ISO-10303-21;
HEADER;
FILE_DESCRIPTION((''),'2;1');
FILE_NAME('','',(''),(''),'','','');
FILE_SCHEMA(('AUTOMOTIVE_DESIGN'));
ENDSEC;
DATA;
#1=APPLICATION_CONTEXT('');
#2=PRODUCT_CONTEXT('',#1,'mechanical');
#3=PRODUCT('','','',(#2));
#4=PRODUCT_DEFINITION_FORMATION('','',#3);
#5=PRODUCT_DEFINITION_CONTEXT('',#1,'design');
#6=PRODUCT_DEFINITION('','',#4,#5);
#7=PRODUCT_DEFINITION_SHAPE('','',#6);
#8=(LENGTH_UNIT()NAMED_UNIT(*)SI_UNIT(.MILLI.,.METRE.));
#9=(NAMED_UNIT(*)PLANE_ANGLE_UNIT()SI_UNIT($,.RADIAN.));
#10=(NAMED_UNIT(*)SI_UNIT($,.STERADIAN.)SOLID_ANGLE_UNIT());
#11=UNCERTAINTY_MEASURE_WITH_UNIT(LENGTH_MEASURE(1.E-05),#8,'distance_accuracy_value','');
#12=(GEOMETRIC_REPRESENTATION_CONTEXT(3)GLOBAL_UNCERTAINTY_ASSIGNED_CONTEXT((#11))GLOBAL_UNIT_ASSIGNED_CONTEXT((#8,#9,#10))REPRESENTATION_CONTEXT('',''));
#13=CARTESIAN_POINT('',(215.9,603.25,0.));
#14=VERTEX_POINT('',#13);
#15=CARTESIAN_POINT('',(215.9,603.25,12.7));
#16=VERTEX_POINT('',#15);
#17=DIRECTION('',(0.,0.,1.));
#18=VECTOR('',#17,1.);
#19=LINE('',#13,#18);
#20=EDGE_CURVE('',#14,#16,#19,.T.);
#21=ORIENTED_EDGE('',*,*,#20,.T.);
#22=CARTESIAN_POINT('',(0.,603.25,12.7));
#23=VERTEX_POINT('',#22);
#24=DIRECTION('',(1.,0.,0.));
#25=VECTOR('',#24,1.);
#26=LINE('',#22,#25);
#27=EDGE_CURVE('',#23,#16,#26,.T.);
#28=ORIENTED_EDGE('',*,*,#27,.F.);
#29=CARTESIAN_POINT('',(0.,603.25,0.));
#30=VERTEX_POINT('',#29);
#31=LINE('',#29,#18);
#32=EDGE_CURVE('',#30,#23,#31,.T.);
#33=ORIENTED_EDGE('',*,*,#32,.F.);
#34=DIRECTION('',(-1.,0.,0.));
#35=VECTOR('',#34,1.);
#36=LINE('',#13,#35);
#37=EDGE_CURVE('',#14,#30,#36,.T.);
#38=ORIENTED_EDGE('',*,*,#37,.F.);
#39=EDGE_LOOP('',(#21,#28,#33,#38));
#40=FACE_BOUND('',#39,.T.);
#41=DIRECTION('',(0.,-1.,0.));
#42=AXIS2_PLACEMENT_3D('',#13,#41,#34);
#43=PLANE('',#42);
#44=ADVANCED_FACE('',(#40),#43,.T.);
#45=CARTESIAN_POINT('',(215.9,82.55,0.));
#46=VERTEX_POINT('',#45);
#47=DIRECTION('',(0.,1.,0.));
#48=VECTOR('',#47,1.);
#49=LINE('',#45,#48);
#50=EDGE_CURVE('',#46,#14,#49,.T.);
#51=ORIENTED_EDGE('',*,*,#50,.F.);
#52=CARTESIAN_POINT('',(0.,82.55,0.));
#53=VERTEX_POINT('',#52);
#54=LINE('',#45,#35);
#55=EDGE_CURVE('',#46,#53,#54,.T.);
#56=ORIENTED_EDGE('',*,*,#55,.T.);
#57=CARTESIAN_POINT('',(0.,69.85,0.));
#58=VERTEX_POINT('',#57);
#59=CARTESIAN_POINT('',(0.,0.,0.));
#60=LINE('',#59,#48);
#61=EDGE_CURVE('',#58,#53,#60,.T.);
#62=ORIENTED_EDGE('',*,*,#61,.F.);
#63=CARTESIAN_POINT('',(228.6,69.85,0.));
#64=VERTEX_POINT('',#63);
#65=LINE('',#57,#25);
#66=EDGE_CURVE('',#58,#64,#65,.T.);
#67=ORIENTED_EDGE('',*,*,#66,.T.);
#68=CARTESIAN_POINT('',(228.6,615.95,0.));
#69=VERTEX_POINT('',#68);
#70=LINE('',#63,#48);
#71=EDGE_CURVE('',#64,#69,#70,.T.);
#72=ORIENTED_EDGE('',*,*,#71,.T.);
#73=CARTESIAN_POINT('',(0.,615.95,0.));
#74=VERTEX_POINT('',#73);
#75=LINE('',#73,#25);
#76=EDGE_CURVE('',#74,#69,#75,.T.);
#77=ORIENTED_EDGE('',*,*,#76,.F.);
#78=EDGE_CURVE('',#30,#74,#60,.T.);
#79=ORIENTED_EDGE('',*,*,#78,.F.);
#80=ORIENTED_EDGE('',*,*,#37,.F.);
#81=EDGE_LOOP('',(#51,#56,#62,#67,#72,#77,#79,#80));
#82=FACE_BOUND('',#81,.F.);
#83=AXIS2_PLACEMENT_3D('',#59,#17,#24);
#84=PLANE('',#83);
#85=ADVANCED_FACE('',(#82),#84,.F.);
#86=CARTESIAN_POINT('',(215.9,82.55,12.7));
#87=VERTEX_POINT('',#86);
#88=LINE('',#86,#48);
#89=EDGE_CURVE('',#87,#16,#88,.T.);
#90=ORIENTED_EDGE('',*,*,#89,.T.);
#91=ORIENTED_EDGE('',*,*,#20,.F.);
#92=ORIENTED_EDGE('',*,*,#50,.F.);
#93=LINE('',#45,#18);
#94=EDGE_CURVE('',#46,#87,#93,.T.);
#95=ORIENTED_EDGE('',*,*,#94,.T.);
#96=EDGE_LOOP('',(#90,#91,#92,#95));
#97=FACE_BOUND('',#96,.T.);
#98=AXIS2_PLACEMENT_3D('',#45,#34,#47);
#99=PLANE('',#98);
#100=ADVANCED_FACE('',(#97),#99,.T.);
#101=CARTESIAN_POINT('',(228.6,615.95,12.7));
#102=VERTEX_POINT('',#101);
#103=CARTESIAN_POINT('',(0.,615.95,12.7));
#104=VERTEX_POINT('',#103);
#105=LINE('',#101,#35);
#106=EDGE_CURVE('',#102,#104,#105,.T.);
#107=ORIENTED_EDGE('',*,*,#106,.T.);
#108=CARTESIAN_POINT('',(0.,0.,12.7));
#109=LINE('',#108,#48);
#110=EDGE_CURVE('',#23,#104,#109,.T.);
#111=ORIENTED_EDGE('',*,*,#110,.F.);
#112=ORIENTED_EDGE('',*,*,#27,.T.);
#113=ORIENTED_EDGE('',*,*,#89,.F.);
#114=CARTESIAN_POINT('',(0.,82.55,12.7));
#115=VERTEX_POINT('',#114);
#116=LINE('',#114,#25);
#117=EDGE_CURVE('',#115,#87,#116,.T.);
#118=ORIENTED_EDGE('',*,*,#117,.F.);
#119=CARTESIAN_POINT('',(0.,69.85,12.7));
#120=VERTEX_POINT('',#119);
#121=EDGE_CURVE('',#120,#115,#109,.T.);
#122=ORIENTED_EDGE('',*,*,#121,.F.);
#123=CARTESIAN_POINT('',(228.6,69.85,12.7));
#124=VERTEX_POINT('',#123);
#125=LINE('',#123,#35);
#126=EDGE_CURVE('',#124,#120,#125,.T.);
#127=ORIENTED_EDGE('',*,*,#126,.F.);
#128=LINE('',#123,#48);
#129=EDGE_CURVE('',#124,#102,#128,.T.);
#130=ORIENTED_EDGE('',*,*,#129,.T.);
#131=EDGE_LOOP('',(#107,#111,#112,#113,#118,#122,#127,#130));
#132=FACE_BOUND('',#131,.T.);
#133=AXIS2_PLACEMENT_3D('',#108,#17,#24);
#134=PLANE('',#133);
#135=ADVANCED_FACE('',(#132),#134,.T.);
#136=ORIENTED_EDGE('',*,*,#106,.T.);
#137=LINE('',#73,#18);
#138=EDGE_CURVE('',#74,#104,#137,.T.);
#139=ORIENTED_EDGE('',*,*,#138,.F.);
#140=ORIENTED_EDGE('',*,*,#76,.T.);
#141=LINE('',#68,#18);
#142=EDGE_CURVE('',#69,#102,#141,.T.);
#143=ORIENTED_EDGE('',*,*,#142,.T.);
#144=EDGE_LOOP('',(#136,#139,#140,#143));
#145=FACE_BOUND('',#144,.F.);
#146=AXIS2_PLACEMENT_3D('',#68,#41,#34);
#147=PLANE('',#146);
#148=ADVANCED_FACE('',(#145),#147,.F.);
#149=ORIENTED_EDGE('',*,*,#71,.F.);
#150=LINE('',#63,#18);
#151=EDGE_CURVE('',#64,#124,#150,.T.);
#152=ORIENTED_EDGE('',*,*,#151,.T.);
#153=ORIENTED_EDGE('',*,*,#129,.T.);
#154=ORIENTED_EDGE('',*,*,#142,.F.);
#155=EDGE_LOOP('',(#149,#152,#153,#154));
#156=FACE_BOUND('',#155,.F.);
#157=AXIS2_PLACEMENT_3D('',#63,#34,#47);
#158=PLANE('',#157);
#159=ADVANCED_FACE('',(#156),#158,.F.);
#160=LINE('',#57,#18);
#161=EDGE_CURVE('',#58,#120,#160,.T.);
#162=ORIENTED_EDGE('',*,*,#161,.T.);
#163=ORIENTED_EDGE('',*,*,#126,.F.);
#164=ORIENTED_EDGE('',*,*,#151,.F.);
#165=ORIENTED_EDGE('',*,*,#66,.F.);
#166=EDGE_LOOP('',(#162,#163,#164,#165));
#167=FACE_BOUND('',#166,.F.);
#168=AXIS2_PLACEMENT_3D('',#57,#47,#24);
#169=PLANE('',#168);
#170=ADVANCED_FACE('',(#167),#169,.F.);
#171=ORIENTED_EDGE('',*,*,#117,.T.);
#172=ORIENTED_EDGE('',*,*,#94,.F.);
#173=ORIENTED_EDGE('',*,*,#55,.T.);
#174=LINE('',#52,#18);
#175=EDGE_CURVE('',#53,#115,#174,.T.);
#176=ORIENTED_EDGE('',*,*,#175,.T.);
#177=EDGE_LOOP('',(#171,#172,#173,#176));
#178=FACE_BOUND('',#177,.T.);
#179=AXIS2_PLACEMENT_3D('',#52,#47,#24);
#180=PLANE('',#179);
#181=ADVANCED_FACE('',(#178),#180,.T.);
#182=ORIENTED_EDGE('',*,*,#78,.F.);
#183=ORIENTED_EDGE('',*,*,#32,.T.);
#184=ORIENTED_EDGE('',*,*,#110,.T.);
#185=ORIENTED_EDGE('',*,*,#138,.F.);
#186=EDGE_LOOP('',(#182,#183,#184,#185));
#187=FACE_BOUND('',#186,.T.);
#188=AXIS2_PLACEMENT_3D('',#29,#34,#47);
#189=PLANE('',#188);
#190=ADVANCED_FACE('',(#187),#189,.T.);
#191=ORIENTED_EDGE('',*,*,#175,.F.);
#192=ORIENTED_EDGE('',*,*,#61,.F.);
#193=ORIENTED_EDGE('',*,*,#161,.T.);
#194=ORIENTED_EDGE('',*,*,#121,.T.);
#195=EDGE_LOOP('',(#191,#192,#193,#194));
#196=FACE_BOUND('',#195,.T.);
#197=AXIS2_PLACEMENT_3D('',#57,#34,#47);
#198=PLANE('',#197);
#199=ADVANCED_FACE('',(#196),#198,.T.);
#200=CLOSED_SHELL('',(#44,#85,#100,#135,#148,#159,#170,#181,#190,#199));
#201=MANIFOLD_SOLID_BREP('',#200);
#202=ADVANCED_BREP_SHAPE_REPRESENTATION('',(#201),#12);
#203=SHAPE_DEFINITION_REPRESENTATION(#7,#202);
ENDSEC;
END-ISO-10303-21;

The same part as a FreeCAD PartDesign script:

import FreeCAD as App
import Part
import Sketcher

V = App.Vector
Q = App.Units.Quantity

doc = App.newDocument("Part")
body = doc.addObject("PartDesign::Body", "Body")

# Sketch on XY plane
sketch1 = body.newObject("Sketcher::SketchObject", "Sketch")
sketch1.AttachmentSupport = (doc.getObject("XY_Plane"), [""])
sketch1.MapMode = "FlatFace"
sketch1.addGeometry(Part.LineSegment(V(0, 83, 0), V(0, 70, 0)), False)
sketch1.addGeometry(Part.LineSegment(V(0, 70, 0), V(229, 70, 0)), False)
sketch1.addGeometry(Part.LineSegment(V(229, 70, 0), V(229, 616, 0)), False)
sketch1.addGeometry(Part.LineSegment(V(229, 616, 0), V(0, 616, 0)), False)
sketch1.addGeometry(Part.LineSegment(V(0, 616, 0), V(0, 603, 0)), False)
sketch1.addGeometry(Part.LineSegment(V(0, 603, 0), V(216, 603, 0)), False)
sketch1.addGeometry(Part.LineSegment(V(216, 603, 0), V(216, 83, 0)), False)
sketch1.addGeometry(Part.LineSegment(V(216, 83, 0), V(0, 83, 0)), False)
sketch1.addConstraint(Sketcher.Constraint("Coincident", 0, 2, 1, 1))
sketch1.addConstraint(Sketcher.Constraint("Coincident", 1, 2, 2, 1))
sketch1.addConstraint(Sketcher.Constraint("Coincident", 2, 2, 3, 1))
sketch1.addConstraint(Sketcher.Constraint("Coincident", 3, 2, 4, 1))
sketch1.addConstraint(Sketcher.Constraint("Coincident", 4, 2, 5, 1))
sketch1.addConstraint(Sketcher.Constraint("Coincident", 5, 2, 6, 1))
sketch1.addConstraint(Sketcher.Constraint("Coincident", 6, 2, 7, 1))
sketch1.addConstraint(Sketcher.Constraint("Coincident", 7, 2, 0, 1))
sketch1.addConstraint(Sketcher.Constraint("Vertical", 0))
sketch1.addConstraint(Sketcher.Constraint("Horizontal", 1))
sketch1.addConstraint(Sketcher.Constraint("Vertical", 2))
sketch1.addConstraint(Sketcher.Constraint("Horizontal", 3))
sketch1.addConstraint(Sketcher.Constraint("Vertical", 4))
sketch1.addConstraint(Sketcher.Constraint("Horizontal", 5))
sketch1.addConstraint(Sketcher.Constraint("Vertical", 6))
sketch1.addConstraint(Sketcher.Constraint("Horizontal", 7))
sketch1.addConstraint(Sketcher.Constraint("PointOnObject", 0, 2, -2))
sketch1.addConstraint(Sketcher.Constraint("PointOnObject", 3, 2, -2))
sketch1.addConstraint(Sketcher.Constraint("Equal", 0, 4))
sketch1.addConstraint(Sketcher.Constraint("DistanceX", 1, 1, 1, 2, Q("9 in")))
sketch1.addConstraint(Sketcher.Constraint("DistanceY", 0, 2, 0, 1, Q("0.5 in")))
sketch1.addConstraint(Sketcher.Constraint("DistanceY", 2, 1, 2, 2, Q("21.5 in")))
sketch1.addConstraint(Sketcher.Constraint("DistanceX", 5, 2, 2, 2, Q("0.5 in")))
sketch1.addConstraint(Sketcher.Constraint("DistanceY", -1, 1, 0, 2, Q("2.75 in")))
pad1 = body.newObject("PartDesign::Pad", "Pad")
pad1.Profile = sketch1
pad1.Length = Q("0.5 in")

doc.recompute()
